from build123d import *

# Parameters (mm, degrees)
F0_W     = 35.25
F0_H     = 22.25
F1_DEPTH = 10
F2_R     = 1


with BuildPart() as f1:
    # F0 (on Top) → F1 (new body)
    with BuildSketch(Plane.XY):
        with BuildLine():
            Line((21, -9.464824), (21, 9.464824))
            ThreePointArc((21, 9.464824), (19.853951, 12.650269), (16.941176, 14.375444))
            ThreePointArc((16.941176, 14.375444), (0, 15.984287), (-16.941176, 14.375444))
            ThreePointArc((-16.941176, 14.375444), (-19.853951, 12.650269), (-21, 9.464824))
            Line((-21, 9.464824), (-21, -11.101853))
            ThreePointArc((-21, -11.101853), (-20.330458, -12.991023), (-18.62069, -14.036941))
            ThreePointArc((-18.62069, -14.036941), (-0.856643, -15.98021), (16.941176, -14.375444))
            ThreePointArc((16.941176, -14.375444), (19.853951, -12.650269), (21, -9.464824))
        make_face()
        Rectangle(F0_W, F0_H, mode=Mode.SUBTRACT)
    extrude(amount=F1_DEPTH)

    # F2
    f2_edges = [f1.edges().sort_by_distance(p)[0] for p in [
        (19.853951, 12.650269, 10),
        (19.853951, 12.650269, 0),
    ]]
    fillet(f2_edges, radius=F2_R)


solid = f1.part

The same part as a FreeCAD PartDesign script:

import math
import FreeCAD as App
import Part
import Sketcher
Q = App.Units.Quantity


def edges_at(feature, points):
    """Names of the edges that pass closest to the given points."""
    edges = feature.Shape.Edges
    near = lambda p: min(range(len(edges)), key=lambda i: edges[i].distToShape(Part.Vertex(*p))[0])
    return sorted({f"Edge{near(p) + 1}" for p in points})


def add_polygon(sketch, points):
    """Adds a closed chain of lines whose ends are joined by coincident constraints."""
    first, n = sketch.GeometryCount, len(points)
    for a, b in zip(points, points[1:] + points[:1]):
        sketch.addGeometry(Part.LineSegment(App.Vector(*a, 0), App.Vector(*b, 0)), False)
    for i in range(n):
        sketch.addConstraint(Sketcher.Constraint("Coincident", first + i, 2, first + (i + 1) % n, 1))

doc = App.newDocument("Part")
body = doc.addObject("PartDesign::Body", "Body")

# Sketch on XY plane
sketch1 = body.newObject("Sketcher::SketchObject", "Sketch")
sketch1.AttachmentSupport = (doc.getObject("XY_Plane"), [""])
sketch1.MapMode = "FlatFace"
sketch1.addGeometry(Part.LineSegment(App.Vector(21, -9.464824, 0), App.Vector(21, 9.464824, 0)), False)  # 0
sketch1.addGeometry(Part.ArcOfCircle(Part.Circle(App.Vector(15.999999, 9.464823, 0), App.Vector(0, 0, 1), 5.000001), math.radians(0.000007), math.radians(79.150182)), False)  # 1
sketch1.addGeometry(Part.ArcOfCircle(Part.Circle(App.Vector(0, -74.015738, 0), App.Vector(0, 0, 1), 90.000025), math.radians(79.150187), math.radians(100.849813)), False)  # 2
sketch1.addGeometry(Part.ArcOfCircle(Part.Circle(App.Vector(-15.999999, 9.464823, 0), App.Vector(0, 0, 1), 5.000001), math.radians(100.849818), math.radians(179.999993)), False)  # 3
sketch1.addGeometry(Part.LineSegment(App.Vector(-21, 9.464824, 0), App.Vector(-21, -11.101853, 0)), False)  # 4
sketch1.addGeometry(Part.ArcOfCircle(Part.Circle(App.Vector(-18, -11.101852, 0), App.Vector(0, 0, 1), 3), math.radians(-179.999986), math.radians(-101.940557)), False)  # 5
sketch1.addGeometry(Part.ArcOfCircle(Part.Circle(App.Vector(0.000002, 74.015722, 0), App.Vector(0, 0, 1), 90.000009), math.radians(-101.940544), math.radians(-79.150187)), False)  # 6
sketch1.addGeometry(Part.ArcOfCircle(Part.Circle(App.Vector(15.999999, -9.464823, 0), App.Vector(0, 0, 1), 5.000001), math.radians(-79.150182), math.radians(-0.000007)), False)  # 7
add_polygon(sketch1, [(17.625, -11.125), (-17.625, -11.125), (-17.625, 11.125), (17.625, 11.125)])  # lines 8-11
sketch1.addConstraint([
    Sketcher.Constraint("Tangent", 0, 2, 1, 1),
    Sketcher.Constraint("Tangent", 1, 2, 2, 1),
    Sketcher.Constraint("Tangent", 2, 2, 3, 1),
    Sketcher.Constraint("Tangent", 3, 2, 4, 1),
    Sketcher.Constraint("Tangent", 4, 2, 5, 1),
    Sketcher.Constraint("Tangent", 5, 2, 6, 1),
    Sketcher.Constraint("Tangent", 6, 2, 7, 1),
    Sketcher.Constraint("Tangent", 7, 2, 0, 1),
    Sketcher.Constraint("Vertical", 0),
    Sketcher.Constraint("Vertical", 4),
    Sketcher.Constraint("Horizontal", 8),
    Sketcher.Constraint("Vertical", 9),
    Sketcher.Constraint("Horizontal", 10),
    Sketcher.Constraint("Vertical", 11),
    Sketcher.Constraint("Equal", 1, 3),
    Sketcher.Constraint("Equal", 3, 7),
    Sketcher.Constraint("Symmetric", 3, 3, 7, 3, -1, 1),
    Sketcher.Constraint("Symmetric", 8, 2, 10, 2, -1, 1),
    Sketcher.Constraint("PointOnObject", 2, 3, -2),
    Sketcher.Constraint("PointOnObject", 6, 3, -2),
    Sketcher.Constraint("Radius", 1, Q("5.000001 mm")),
    Sketcher.Constraint("Radius", 5, Q("3 mm")),
    Sketcher.Constraint("DistanceX", -1, 1, 1, 3, Q("15.999999 mm")),
    Sketcher.Constraint("DistanceX", 8, 2, 8, 1, Q("35.25 mm")),
    Sketcher.Constraint("DistanceY", 9, 1, 9, 2, Q("22.25 mm")),
    Sketcher.Constraint("Radius", 6, Q("90.000009 mm")),
    Sketcher.Constraint("Radius", 2, Q("90.000025 mm")),
    Sketcher.Constraint("DistanceY", 0, 1, 0, 2, Q("18.929648 mm")),
])
pad1 = body.newObject("PartDesign::Pad", "Pad")
pad1.Profile = sketch1
pad1.Length = 10
doc.recompute()

fillet = body.newObject("PartDesign::Fillet", "Fillet")
fillet.Base = (pad1, edges_at(pad1, [(19.854, 12.65, 10), (19.854, 12.65, 0)]))
fillet.Radius = 1

doc.recompute()
